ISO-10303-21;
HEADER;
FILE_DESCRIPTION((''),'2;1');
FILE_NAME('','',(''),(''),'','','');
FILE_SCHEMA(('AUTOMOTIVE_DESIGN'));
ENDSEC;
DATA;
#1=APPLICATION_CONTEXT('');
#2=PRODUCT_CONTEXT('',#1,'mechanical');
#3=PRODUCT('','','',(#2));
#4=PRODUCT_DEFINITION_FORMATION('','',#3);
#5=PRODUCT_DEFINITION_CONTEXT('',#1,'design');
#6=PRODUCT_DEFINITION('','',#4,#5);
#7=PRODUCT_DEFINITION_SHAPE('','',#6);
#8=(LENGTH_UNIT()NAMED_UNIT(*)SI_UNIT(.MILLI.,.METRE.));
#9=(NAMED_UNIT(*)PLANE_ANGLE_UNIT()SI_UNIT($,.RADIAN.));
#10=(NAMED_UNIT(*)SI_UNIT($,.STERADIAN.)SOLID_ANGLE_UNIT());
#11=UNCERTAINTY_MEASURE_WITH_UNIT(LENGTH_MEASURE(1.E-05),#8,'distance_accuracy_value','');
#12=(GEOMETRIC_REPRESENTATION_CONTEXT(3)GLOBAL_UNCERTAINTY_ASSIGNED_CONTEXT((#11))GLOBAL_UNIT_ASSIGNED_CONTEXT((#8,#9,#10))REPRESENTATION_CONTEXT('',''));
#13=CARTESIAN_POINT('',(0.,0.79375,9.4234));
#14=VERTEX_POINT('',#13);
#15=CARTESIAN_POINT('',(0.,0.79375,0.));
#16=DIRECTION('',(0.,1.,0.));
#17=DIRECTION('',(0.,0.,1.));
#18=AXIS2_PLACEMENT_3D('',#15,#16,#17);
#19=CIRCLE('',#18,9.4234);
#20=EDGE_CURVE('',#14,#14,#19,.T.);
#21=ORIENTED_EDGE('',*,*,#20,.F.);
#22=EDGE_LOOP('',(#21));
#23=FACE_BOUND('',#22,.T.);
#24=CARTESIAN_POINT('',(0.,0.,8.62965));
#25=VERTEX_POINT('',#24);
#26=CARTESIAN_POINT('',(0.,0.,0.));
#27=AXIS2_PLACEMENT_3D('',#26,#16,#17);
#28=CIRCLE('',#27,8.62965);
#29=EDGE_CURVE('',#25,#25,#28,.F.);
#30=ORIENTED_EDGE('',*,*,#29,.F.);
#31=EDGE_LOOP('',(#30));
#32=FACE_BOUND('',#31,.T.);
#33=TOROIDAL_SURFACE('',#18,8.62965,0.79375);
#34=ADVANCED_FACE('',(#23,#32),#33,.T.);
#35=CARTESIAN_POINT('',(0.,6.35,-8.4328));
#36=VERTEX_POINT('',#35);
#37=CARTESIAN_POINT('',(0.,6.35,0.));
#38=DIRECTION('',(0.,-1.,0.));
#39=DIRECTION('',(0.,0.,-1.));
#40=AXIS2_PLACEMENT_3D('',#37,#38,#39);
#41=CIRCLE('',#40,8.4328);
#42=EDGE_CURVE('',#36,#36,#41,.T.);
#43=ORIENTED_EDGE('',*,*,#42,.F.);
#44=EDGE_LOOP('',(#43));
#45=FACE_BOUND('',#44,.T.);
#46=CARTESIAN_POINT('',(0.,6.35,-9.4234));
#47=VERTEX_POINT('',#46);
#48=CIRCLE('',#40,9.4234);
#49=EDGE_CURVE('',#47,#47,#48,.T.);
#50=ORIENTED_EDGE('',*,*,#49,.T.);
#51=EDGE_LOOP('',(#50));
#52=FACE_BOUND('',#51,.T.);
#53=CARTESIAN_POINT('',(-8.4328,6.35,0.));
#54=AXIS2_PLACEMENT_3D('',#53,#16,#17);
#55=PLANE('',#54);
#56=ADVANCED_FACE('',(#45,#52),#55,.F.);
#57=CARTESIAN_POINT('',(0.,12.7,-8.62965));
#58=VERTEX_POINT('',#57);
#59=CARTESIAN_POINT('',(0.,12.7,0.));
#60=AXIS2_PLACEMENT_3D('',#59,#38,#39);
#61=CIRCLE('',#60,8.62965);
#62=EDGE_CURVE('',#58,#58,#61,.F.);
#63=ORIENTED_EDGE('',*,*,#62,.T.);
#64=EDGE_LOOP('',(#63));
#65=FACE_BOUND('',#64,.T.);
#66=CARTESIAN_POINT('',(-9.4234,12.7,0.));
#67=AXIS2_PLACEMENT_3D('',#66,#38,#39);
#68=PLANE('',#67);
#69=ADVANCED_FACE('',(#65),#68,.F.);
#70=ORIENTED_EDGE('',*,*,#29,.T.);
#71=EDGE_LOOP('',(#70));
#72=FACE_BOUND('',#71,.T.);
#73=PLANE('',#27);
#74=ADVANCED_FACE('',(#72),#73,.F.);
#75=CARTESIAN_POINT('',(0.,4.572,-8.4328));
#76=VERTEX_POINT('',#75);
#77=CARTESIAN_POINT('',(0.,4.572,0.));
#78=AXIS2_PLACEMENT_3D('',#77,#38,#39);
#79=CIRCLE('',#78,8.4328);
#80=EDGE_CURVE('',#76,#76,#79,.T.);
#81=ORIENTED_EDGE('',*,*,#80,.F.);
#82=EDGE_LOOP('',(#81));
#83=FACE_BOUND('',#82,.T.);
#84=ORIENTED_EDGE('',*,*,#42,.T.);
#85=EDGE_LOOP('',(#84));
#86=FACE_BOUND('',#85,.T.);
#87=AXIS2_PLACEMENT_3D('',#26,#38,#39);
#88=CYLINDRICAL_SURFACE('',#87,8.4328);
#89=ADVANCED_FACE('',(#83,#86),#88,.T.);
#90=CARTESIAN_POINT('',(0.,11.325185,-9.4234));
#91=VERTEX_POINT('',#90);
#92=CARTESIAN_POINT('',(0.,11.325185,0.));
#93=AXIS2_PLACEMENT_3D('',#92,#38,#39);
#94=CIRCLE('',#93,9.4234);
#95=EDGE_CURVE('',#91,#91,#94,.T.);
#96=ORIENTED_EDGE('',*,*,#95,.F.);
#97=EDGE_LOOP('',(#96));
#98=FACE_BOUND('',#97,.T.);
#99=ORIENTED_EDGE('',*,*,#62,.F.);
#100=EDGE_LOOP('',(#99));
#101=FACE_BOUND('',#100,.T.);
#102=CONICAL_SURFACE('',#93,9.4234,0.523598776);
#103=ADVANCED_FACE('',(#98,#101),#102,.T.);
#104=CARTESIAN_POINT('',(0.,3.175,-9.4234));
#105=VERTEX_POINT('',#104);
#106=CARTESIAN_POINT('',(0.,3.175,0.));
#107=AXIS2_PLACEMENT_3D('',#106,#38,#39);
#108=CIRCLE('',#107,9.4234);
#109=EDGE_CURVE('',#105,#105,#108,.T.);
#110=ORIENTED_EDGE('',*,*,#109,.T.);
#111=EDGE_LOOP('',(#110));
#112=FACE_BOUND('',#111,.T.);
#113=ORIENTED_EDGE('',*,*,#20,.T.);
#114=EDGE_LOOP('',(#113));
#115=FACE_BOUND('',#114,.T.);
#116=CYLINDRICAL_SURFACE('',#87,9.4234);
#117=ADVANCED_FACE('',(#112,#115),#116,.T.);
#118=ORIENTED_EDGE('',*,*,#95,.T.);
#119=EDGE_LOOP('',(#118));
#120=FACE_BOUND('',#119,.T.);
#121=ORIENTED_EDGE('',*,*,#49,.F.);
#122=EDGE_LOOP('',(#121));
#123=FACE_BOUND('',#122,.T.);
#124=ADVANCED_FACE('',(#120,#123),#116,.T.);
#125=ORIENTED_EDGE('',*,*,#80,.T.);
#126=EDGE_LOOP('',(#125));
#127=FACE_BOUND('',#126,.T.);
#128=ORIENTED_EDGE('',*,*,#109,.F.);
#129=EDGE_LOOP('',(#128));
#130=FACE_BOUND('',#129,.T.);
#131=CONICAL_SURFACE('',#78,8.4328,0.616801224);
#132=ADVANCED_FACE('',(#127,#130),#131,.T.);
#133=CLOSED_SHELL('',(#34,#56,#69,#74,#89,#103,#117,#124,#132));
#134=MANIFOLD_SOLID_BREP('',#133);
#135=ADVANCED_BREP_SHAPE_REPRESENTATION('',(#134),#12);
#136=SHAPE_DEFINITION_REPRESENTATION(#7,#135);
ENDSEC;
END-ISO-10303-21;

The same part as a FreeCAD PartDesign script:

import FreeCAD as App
import Part
import Sketcher
from FreeCAD import Vector
Q = App.Units.Quantity


def edges_at(feature, points):
    """Names of the edges that pass closest to the given points."""
    edges = feature.Shape.Edges
    near = lambda p: min(range(len(edges)), key=lambda i: edges[i].distToShape(Part.Vertex(*p))[0])
    return sorted({f"Edge{near(p) + 1}" for p in points})

doc = App.newDocument("Part")
body = doc.addObject("PartDesign::Body", "Body")

sketch1 = body.newObject("Sketcher::SketchObject", "Sketch")
sketch1.AttachmentSupport = (doc.getObject("XY_Plane"), [""])
sketch1.MapMode = "FlatFace"
sketch1.addGeometry([
    Part.LineSegment(Vector(-9.4, 0, 0), Vector(0, 0, 0)),
    Part.LineSegment(Vector(0, 0, 0), Vector(0, 12.7, 0)),
    Part.LineSegment(Vector(0, 12.7, 0), Vector(-9.4, 12.7, 0)),
    Part.LineSegment(Vector(-9.4, 12.7, 0), Vector(-9.4, 6.3, 0)),
    Part.LineSegment(Vector(-9.4, 6.3, 0), Vector(-8.4, 6.3, 0)),
    Part.LineSegment(Vector(-8.4, 6.3, 0), Vector(-8.4, 4.6, 0)),
    Part.LineSegment(Vector(-8.4, 4.6, 0), Vector(-9.4, 3.2, 0)),
    Part.LineSegment(Vector(-9.4, 3.2, 0), Vector(-9.4, 0, 0)),
], False)
sketch1.addConstraint([
    Sketcher.Constraint("Coincident", 0, 2, 1, 1),
    Sketcher.Constraint("Coincident", 1, 2, 2, 1),
    Sketcher.Constraint("Coincident", 2, 2, 3, 1),
    Sketcher.Constraint("Coincident", 3, 2, 4, 1),
    Sketcher.Constraint("Coincident", 4, 2, 5, 1),
    Sketcher.Constraint("Coincident", 5, 2, 6, 1),
    Sketcher.Constraint("Coincident", 6, 2, 7, 1),
    Sketcher.Constraint("Coincident", 7, 2, 0, 1),
    Sketcher.Constraint("Horizontal", 0),
    Sketcher.Constraint("Vertical", 1),
    Sketcher.Constraint("Horizontal", 2),
    Sketcher.Constraint("Vertical", 3),
    Sketcher.Constraint("Horizontal", 4),
    Sketcher.Constraint("Vertical", 5),
    Sketcher.Constraint("Vertical", 7),
    Sketcher.Constraint("Coincident", 0, 2, -1, 1),
    Sketcher.Constraint("Vertical", 3, 2, 6, 2),
    Sketcher.Constraint("DistanceY", 1, 1, 1, 2, Q("0.5 in")),
    Sketcher.Constraint("DistanceY", 3, 2, 3, 1, Q("0.25 in")),
    Sketcher.Constraint("DistanceY", 5, 2, 5, 1, Q("0.07 in")),
    Sketcher.Constraint("DistanceX", 0, 1, 0, 2, Q("0.371 in")),
    Sketcher.Constraint("DistanceX", 4, 1, 4, 2, Q("0.039 in")),
    Sketcher.Constraint("DistanceY", 7, 2, 7, 1, Q("0.125 in")),
])
revolution = body.newObject("PartDesign::Revolution", "Revolution")
revolution.Profile = sketch1
revolution.ReferenceAxis = (sketch1, ["V_Axis"])
revolution.Angle = 360
doc.recompute()

fillet = body.newObject("PartDesign::Fillet", "Fillet")
fillet.Base = (revolution, edges_at(revolution, [(9.423, 0, 0)]))
fillet.Radius = Q("0.03125 in")
doc.recompute()

chamfer = body.newObject("PartDesign::Chamfer", "Chamfer")
chamfer.Base = (fillet, edges_at(fillet, [(9.423, 12.7, 0)]))
chamfer.ChamferType = "Two distances"
chamfer.Size = Q("0.03125 in")
chamfer.Size2 = 1.374815
chamfer.FlipDirection = True

doc.recompute()
